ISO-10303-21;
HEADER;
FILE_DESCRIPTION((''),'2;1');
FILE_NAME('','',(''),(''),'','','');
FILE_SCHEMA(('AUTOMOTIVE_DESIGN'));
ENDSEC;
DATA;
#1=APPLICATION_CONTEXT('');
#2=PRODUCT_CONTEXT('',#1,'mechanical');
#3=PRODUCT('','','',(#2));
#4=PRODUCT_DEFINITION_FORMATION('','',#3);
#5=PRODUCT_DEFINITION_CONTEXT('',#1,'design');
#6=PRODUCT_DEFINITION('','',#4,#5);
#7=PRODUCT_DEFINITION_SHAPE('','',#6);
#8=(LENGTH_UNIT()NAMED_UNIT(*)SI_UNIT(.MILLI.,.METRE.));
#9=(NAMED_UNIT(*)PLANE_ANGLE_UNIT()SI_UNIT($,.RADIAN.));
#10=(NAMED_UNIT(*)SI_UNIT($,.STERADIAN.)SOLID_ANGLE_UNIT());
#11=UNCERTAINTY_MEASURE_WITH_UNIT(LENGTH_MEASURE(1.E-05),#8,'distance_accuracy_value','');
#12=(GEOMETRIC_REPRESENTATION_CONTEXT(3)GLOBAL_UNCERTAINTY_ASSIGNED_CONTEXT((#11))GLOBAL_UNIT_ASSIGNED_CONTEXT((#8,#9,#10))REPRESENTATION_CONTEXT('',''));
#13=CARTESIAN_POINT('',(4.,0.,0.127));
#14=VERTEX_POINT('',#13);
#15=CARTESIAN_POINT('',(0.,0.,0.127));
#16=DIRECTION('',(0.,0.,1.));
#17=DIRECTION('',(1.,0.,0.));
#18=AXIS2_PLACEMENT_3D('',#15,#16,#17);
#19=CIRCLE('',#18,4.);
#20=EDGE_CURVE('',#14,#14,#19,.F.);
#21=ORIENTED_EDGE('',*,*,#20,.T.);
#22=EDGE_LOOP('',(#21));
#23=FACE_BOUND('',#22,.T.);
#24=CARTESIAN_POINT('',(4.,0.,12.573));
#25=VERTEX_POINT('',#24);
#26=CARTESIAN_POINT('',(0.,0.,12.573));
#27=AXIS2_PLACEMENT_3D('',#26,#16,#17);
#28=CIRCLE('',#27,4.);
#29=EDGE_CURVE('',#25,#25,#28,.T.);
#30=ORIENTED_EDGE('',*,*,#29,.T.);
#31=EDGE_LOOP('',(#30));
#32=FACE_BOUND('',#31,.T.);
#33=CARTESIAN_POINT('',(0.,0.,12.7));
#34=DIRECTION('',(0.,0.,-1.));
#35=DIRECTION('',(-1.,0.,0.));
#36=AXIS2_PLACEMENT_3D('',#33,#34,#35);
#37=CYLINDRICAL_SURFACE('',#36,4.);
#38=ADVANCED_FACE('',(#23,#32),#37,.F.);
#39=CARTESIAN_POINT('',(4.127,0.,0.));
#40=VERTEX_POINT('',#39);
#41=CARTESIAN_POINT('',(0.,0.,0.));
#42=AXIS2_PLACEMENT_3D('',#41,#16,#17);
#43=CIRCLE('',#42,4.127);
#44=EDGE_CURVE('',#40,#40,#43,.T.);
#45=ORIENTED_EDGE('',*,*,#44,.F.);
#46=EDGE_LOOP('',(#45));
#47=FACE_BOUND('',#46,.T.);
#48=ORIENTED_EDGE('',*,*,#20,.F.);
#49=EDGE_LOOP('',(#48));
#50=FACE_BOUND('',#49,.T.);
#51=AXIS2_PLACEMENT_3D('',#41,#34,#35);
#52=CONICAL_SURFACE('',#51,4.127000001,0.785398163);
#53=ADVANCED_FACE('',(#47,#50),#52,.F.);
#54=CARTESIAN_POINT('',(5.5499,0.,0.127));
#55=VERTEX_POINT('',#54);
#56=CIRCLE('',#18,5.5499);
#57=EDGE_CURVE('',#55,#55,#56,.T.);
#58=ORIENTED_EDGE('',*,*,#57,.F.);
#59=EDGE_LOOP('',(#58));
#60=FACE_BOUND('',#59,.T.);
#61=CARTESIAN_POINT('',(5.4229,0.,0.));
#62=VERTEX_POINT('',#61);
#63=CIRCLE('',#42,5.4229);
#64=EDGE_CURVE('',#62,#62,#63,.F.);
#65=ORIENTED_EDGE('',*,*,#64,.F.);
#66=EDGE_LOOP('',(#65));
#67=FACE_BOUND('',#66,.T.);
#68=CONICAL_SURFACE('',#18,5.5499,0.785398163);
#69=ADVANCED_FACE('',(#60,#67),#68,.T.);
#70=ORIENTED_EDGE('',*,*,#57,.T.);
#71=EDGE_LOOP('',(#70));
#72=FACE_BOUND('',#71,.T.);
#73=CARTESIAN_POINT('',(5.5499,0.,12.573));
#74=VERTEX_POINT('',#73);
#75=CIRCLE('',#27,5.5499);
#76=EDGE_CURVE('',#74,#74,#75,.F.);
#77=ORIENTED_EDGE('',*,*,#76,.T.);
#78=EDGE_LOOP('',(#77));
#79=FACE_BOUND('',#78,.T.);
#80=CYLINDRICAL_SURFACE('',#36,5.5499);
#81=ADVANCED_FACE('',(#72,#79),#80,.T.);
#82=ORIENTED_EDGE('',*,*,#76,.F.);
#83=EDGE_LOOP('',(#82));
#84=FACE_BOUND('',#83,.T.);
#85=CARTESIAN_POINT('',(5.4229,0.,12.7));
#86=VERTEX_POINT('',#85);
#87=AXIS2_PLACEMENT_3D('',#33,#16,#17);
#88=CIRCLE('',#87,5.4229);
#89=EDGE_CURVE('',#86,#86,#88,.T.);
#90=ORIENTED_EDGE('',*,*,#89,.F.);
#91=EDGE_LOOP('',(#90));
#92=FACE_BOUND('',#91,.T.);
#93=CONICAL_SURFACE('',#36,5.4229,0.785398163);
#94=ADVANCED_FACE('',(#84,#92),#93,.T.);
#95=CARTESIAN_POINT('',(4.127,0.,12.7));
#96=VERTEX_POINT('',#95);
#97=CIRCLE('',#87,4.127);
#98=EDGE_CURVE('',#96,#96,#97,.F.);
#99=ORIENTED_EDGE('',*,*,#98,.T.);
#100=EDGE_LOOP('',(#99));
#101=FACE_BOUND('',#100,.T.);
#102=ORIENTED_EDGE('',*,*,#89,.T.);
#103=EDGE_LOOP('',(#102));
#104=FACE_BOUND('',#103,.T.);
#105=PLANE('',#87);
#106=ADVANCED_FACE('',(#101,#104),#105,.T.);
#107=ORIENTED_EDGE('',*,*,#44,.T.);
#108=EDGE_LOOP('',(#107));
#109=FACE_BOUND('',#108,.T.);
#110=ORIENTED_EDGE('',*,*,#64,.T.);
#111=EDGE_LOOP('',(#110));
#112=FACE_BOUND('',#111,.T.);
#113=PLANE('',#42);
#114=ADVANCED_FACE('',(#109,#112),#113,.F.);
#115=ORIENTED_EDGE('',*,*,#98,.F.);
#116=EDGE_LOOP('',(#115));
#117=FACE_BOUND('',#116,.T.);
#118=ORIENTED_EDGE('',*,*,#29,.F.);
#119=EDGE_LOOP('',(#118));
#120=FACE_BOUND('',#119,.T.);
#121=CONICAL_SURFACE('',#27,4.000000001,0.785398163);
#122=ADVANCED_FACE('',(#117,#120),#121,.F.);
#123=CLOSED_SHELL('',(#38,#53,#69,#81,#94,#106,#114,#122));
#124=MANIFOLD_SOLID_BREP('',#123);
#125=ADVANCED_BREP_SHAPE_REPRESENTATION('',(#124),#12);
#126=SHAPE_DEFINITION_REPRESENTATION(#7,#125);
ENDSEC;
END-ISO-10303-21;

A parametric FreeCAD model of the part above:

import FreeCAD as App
import Part
import Sketcher
from FreeCAD import Vector
Q = App.Units.Quantity


def edges_at(feature, points):
    """Names of the edges that pass closest to the given points."""
    edges = feature.Shape.Edges
    near = lambda p: min(range(len(edges)), key=lambda i: edges[i].distToShape(Part.Vertex(*p))[0])
    return sorted({f"Edge{near(p) + 1}" for p in points})

doc = App.newDocument("Part")
body = doc.addObject("PartDesign::Body", "Body")

sketch1 = body.newObject("Sketcher::SketchObject", "Sketch")
sketch1.AttachmentSupport = (doc.getObject("XY_Plane"), [""])
sketch1.MapMode = "FlatFace"
sketch1.addGeometry(Part.Circle(Vector(0, 0, 0), Vector(0, 0, 1), 5.5), False)
sketch1.addGeometry(Part.Circle(Vector(0, 0, 0), Vector(0, 0, 1), 4), False)
sketch1.addConstraint(Sketcher.Constraint("Coincident", 0, 3, -1, 1))
sketch1.addConstraint(Sketcher.Constraint("Coincident", 1, 3, -1, 1))
sketch1.addConstraint(Sketcher.Constraint("Diameter", 0, Q("0.437 in")))
sketch1.addConstraint(Sketcher.Constraint("Diameter", 1, Q("8 mm")))
pad1 = body.newObject("PartDesign::Pad", "Pad")
pad1.Profile = sketch1
pad1.Length = Q("0.5 in")
doc.recompute()

chamfer = body.newObject("PartDesign::Chamfer", "Chamfer")
chamfer.Base = (pad1, edges_at(pad1, [
    (-5.55, 0, 0),
    (-5.55, 0, 12.7),
    (-4, 0, 0),
    (-4, 0, 12.7),
]))
chamfer.Size = Q("0.005 in")

doc.recompute()
